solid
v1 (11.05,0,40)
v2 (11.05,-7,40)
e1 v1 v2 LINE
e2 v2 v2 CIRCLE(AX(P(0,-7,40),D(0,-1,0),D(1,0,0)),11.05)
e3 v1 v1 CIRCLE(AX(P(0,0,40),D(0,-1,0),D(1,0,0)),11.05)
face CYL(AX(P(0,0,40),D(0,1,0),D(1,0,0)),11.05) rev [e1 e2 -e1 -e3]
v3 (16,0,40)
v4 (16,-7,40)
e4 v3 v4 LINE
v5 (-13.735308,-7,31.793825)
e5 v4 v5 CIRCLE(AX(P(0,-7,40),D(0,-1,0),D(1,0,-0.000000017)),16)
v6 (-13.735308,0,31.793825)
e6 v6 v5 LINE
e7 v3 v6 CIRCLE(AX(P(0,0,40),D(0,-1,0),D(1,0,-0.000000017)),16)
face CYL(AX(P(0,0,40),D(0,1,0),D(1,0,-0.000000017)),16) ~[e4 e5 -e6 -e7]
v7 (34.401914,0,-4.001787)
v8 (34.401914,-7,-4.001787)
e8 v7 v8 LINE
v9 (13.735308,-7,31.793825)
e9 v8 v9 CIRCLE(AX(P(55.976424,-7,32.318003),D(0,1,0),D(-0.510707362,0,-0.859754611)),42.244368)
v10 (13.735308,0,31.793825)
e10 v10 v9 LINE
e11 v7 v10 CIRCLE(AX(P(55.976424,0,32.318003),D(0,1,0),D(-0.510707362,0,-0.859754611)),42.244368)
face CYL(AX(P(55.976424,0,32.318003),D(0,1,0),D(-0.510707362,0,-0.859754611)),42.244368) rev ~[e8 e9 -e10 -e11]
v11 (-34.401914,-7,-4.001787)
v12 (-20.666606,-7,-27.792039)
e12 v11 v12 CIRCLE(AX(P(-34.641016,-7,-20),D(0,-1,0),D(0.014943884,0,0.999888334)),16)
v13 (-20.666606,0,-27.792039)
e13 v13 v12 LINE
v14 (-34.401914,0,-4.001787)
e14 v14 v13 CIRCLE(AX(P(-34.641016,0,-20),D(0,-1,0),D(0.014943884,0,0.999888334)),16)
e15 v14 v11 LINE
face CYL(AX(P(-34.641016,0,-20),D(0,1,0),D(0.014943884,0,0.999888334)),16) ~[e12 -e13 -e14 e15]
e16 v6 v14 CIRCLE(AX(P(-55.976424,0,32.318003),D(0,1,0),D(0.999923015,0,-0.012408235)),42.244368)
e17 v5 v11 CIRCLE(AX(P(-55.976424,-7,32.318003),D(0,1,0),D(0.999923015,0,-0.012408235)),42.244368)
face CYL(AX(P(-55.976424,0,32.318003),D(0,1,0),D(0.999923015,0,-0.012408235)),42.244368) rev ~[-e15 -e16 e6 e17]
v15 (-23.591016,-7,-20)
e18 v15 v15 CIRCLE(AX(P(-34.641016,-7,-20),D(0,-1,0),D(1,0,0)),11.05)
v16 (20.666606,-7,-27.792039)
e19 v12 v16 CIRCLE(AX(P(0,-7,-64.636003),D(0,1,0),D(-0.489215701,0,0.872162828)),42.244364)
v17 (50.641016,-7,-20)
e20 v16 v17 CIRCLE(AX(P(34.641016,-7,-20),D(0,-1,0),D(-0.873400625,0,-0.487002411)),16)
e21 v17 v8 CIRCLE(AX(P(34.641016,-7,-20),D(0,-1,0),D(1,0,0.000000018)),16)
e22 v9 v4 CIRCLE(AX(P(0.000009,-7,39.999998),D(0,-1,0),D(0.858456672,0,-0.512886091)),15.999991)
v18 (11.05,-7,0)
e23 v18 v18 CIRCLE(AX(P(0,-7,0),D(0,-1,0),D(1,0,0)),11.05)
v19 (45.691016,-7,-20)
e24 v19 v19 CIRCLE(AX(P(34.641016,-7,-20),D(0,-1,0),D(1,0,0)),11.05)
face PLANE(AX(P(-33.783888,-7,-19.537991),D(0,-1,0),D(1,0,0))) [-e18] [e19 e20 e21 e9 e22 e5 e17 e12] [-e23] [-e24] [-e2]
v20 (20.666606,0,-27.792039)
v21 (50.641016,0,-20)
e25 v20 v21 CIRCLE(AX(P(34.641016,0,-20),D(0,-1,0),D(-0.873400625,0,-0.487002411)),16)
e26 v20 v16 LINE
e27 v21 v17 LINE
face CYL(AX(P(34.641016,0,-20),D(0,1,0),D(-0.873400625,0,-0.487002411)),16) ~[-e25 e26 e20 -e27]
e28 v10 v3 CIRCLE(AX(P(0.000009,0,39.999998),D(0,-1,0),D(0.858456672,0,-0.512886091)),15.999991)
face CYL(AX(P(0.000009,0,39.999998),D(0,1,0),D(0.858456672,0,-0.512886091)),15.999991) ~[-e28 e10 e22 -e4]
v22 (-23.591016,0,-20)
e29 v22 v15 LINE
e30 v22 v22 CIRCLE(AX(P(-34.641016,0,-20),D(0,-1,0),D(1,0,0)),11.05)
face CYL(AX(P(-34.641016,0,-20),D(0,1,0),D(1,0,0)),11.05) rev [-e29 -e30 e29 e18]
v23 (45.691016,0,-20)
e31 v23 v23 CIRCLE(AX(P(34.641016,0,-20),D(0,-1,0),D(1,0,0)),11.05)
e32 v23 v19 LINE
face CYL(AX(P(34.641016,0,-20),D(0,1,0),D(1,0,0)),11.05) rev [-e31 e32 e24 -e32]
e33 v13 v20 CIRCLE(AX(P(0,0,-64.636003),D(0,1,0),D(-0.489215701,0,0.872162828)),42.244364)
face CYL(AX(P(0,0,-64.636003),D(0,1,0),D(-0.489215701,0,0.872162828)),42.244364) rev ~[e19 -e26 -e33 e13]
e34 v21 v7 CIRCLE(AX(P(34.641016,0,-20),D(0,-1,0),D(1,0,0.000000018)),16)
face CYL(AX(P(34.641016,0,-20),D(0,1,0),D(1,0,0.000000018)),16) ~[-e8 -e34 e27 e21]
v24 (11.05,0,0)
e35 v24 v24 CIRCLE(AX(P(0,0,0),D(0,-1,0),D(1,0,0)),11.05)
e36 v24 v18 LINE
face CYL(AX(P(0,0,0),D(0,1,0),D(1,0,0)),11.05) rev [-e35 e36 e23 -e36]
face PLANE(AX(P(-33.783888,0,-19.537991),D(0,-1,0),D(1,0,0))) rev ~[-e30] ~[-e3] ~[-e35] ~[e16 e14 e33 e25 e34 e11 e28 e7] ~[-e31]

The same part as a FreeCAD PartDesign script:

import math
import FreeCAD as App
import Part
import Sketcher
from FreeCAD import Vector

doc = App.newDocument("Part")
params = doc.addObject("Spreadsheet::Sheet", "Params")
for row, (alias, value) in enumerate([
    ("sketch1_radius", "16 mm"),
    ("sketch1_diameter", "22.1 mm"),
    ("pad1_length", "7 mm"),
], start=1):
    params.set(f"A{row}", alias)
    params.set(f"B{row}", "=" + value)
    params.setAlias(f"B{row}", alias)

body = doc.addObject("PartDesign::Body", "Body")

sketch1 = body.newObject("Sketcher::SketchObject", "Sketch")
sketch1.AttachmentSupport = (doc.getObject("XZ_Plane"), [""])
sketch1.MapMode = "FlatFace"
sketch1.addGeometry([
    Part.ArcOfCircle(Part.Circle(Vector(-34.641016, -20, 0), Vector(0, 0, 1), 16), math.radians(89.143747), math.radians(330.856252)),
    Part.ArcOfCircle(Part.Circle(Vector(0, -64.636003, 0), Vector(0, 0, 1), 42.244364), math.radians(60.710955), math.radians(119.289045)),
    Part.ArcOfCircle(Part.Circle(Vector(34.641016, -20, 0), Vector(0, 0, 1), 16), math.radians(-150.856252), math.radians(0.000002)),
    Part.ArcOfCircle(Part.Circle(Vector(34.641016, -20, 0), Vector(0, 0, 1), 16), math.radians(0.000001), math.radians(90.856253)),
    Part.ArcOfCircle(Part.Circle(Vector(55.976424, 32.318003, 0), Vector(0, 0, 1), 42.244368), math.radians(-179.289042), math.radians(-120.710958)),
    Part.ArcOfCircle(Part.Circle(Vector(0.000009, 39.999998, 0), Vector(0, 0, 1), 15.999991), math.radians(-30.856263), math.radians(0.000007)),
    Part.ArcOfCircle(Part.Circle(Vector(0, 40, 0), Vector(0, 0, 1), 16), math.radians(-0.000001), math.radians(210.856254)),
    Part.ArcOfCircle(Part.Circle(Vector(-55.976424, 32.318003, 0), Vector(0, 0, 1), 42.244368), math.radians(-59.289042), math.radians(-0.710958)),
    Part.Circle(Vector(-34.641016, -20, 0), Vector(0, 0, 1), 11.05),
    Part.Circle(Vector(34.641016, -20, 0), Vector(0, 0, 1), 11.05),
    Part.Circle(Vector(0, 0, 0), Vector(0, 0, 1), 11.05),
    Part.Circle(Vector(0, 40, 0), Vector(0, 0, 1), 11.05),
], False)
sketch1.addConstraint([
    Sketcher.Constraint("Coincident", 0, 2, 1, 2),
    Sketcher.Constraint("Coincident", 1, 1, 2, 1),
    Sketcher.Constraint("Tangent", 2, 2, 3, 1),
    Sketcher.Constraint("Coincident", 3, 2, 4, 2),
    Sketcher.Constraint("Coincident", 4, 1, 5, 1),
    Sketcher.Constraint("Tangent", 5, 2, 6, 1),
    Sketcher.Constraint("Coincident", 6, 2, 7, 2),
    Sketcher.Constraint("Coincident", 7, 1, 0, 1),
    Sketcher.Constraint("Coincident", 10, 3, -1, 1),
    Sketcher.Constraint("Coincident", 8, 3, 0, 3),
    Sketcher.Constraint("Coincident", 9, 3, 2, 3),
    Sketcher.Constraint("Coincident", 11, 3, 5, 3),
    Sketcher.Constraint("Equal", 0, 2),
    Sketcher.Constraint("Equal", 2, 3),
    Sketcher.Constraint("Equal", 3, 6),
    Sketcher.Constraint("Equal", 4, 7),
    Sketcher.Constraint("Equal", 8, 9),
    Sketcher.Constraint("Equal", 9, 10),
    Sketcher.Constraint("Equal", 10, 11),
    Sketcher.Constraint("Symmetric", 0, 3, 2, 3, -2),
    Sketcher.Constraint("Symmetric", 4, 3, 7, 3, -2),
    Sketcher.Constraint("PointOnObject", 1, 3, -2),
    Sketcher.Constraint("PointOnObject", 6, 3, -2),
    Sketcher.Constraint("PointOnObject", 11, 3, -2),
    Sketcher.Constraint("Horizontal", 9, 3, 2, 2),
    Sketcher.Constraint("Horizontal", 11, 3, 5, 2),
    Sketcher.Constraint("Radius", 0, 16.0),
    Sketcher.Constraint("Diameter", 8, 22.1),
    Sketcher.Constraint("DistanceY", 0, 3, -1, 1, 20.0),
    Sketcher.Constraint("DistanceY", -1, 1, 6, 3, 40.0),
    Sketcher.Constraint("Radius", 1, 42.244364),
    Sketcher.Constraint("Radius", 4, 42.244368),
    Sketcher.Constraint("DistanceY", 1, 3, 5, 3, 104.636001),
    Sketcher.Constraint("DistanceX", 3, 2, 2, 3, 0.239102),
    Sketcher.Constraint("DistanceX", 5, 3, 4, 1, 13.735299),
    Sketcher.Constraint("DistanceY", 0, 2, -1, 1, 27.792039),
])
sketch1.setExpression("Constraints[26]", "Params.sketch1_radius")
sketch1.setExpression("Constraints[27]", "Params.sketch1_diameter")
pad1 = body.newObject("PartDesign::Pad", "Pad")
pad1.Profile = sketch1
pad1.setExpression("Length", "Params.pad1_length")

doc.recompute()
